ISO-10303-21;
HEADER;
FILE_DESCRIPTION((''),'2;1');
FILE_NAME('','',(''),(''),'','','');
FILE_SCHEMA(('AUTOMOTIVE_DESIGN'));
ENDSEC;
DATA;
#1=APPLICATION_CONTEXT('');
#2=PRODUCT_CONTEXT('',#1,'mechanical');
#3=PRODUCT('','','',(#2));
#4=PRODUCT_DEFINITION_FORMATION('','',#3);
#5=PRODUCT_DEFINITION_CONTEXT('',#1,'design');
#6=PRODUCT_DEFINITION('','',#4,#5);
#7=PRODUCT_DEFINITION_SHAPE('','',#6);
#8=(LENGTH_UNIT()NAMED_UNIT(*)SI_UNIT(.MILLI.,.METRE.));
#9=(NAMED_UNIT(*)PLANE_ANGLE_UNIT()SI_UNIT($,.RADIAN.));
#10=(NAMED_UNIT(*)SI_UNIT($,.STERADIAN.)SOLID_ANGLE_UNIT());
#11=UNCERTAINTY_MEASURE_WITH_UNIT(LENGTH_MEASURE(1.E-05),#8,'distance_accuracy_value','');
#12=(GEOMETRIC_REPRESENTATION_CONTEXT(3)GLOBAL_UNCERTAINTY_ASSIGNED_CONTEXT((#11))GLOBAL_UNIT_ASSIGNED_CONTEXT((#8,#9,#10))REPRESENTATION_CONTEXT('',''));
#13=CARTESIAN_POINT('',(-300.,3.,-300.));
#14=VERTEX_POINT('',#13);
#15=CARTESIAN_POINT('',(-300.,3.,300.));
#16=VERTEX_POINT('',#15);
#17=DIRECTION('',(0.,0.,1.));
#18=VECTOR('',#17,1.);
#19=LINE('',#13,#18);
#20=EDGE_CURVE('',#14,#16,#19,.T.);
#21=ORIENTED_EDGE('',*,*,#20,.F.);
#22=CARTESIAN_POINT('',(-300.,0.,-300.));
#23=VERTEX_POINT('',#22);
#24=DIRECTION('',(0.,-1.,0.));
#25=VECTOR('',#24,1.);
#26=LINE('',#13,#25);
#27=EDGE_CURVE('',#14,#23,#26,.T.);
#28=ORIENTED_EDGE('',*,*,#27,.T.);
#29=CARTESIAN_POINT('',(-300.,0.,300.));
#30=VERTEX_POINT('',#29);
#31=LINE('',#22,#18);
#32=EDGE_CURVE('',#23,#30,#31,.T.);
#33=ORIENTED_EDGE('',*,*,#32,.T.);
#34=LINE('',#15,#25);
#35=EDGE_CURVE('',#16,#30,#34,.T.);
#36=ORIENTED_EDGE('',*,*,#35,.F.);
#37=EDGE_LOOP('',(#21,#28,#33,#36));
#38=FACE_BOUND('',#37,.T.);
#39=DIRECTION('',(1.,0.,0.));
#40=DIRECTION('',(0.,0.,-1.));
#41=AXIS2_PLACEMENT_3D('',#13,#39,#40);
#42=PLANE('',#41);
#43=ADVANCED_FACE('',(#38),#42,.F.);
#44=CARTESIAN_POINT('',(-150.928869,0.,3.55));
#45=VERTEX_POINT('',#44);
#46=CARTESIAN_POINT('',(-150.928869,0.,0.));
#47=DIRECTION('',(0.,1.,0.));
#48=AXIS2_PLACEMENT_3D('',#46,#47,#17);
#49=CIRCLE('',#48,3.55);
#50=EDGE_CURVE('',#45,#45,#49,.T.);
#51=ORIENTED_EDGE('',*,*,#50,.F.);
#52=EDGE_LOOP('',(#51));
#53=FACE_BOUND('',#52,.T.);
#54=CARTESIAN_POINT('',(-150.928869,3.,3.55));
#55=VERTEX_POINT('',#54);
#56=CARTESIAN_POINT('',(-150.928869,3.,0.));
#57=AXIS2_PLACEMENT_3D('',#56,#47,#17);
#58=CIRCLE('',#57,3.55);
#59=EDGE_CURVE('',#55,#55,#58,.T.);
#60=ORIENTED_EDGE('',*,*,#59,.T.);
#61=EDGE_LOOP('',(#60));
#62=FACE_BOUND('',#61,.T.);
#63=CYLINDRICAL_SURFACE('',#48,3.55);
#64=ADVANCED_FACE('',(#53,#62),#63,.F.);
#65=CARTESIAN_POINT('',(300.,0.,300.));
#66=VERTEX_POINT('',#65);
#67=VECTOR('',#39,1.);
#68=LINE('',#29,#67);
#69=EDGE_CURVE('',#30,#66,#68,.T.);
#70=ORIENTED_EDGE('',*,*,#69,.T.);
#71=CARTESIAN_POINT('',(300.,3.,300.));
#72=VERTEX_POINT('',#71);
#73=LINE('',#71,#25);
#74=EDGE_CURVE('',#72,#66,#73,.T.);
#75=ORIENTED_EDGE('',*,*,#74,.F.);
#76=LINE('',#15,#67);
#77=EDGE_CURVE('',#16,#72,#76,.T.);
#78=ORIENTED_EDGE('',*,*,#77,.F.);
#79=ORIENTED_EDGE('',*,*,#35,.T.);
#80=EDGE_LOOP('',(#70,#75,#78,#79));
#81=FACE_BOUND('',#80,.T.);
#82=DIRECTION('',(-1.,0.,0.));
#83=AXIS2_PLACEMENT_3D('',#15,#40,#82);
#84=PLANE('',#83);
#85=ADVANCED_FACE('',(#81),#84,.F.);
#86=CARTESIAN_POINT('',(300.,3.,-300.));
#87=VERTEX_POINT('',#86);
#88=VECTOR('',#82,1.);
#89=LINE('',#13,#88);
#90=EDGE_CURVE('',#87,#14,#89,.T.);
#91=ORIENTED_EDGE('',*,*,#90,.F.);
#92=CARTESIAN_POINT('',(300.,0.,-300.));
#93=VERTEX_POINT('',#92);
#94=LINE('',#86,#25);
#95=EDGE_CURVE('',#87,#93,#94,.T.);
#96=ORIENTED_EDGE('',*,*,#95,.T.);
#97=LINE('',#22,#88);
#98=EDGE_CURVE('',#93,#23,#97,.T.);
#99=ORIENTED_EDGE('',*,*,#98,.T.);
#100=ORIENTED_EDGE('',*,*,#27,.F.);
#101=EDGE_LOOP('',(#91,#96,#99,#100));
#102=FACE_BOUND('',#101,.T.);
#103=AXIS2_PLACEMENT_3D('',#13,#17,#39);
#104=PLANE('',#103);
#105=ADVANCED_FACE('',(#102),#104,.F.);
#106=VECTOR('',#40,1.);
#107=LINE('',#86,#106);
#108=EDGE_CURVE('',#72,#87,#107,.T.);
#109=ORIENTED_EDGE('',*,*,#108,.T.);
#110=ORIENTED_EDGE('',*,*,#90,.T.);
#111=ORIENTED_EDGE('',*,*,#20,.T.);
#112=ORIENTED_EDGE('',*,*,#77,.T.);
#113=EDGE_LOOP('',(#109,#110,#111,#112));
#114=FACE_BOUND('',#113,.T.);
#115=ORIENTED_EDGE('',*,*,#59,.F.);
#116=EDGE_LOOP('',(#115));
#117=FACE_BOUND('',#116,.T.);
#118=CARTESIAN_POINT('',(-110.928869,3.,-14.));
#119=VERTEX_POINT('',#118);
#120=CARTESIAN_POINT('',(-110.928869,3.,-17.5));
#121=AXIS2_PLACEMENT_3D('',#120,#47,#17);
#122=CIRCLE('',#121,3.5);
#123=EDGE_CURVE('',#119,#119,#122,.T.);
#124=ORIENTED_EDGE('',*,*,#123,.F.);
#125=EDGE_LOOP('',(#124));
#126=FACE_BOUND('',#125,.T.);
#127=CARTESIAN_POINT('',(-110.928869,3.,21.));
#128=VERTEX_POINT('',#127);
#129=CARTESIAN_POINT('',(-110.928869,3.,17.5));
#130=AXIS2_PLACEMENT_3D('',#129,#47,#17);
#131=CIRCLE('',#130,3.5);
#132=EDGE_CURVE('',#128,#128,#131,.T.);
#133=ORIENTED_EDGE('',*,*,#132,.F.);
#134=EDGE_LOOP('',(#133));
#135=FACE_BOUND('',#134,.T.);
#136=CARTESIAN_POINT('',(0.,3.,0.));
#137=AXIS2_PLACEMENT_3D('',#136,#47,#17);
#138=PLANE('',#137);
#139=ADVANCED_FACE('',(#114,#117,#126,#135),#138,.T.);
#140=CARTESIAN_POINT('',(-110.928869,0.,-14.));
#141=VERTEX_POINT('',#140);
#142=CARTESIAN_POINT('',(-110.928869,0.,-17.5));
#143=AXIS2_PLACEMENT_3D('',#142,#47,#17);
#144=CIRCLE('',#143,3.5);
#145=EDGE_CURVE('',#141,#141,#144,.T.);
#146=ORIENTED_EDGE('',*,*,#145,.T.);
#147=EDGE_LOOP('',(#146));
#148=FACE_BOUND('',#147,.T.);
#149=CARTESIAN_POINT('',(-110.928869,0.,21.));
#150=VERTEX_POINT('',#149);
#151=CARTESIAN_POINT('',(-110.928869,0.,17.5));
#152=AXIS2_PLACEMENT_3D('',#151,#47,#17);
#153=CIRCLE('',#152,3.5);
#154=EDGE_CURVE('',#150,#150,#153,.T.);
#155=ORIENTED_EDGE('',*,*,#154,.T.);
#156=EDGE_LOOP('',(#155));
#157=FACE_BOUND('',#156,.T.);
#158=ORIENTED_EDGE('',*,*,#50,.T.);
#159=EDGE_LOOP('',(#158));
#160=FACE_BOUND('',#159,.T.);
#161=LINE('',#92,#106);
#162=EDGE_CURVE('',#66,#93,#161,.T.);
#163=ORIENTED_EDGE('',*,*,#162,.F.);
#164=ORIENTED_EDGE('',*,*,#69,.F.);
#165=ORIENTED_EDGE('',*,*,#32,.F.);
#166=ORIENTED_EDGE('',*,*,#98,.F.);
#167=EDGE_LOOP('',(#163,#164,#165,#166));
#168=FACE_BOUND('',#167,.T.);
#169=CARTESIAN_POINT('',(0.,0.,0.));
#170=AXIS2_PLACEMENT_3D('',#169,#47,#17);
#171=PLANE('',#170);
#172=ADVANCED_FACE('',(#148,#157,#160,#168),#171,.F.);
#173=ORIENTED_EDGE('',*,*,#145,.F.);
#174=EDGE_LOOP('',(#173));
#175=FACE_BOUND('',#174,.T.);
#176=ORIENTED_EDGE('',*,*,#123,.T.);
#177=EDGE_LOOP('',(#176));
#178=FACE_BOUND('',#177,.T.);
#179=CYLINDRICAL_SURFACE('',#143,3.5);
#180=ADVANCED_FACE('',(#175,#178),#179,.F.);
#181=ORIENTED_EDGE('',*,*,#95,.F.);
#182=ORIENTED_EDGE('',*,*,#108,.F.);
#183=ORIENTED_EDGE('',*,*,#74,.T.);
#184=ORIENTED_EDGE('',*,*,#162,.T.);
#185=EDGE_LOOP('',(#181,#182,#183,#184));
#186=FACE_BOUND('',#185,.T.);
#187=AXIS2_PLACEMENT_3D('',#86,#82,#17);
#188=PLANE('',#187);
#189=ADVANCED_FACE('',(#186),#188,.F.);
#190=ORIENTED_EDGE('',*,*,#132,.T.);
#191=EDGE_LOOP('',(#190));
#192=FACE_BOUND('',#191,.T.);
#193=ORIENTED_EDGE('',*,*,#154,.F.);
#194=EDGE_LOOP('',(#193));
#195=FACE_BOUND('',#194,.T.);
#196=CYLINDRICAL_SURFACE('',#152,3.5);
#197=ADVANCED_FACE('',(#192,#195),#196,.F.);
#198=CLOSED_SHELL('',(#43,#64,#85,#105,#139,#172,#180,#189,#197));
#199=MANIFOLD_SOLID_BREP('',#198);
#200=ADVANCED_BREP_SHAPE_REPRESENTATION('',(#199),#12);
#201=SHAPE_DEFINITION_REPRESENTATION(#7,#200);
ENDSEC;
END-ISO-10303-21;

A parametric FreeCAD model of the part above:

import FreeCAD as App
import Part
import Sketcher

V = App.Vector
Q = App.Units.Quantity


def add_polygon(sketch, points):
    """Adds a closed chain of lines whose ends are joined by coincident constraints."""
    first, n = sketch.GeometryCount, len(points)
    for a, b in zip(points, points[1:] + points[:1]):
        sketch.addGeometry(Part.LineSegment(App.Vector(*a, 0), App.Vector(*b, 0)), False)
    for i in range(n):
        sketch.addConstraint(Sketcher.Constraint("Coincident", first + i, 2, first + (i + 1) % n, 1))

doc = App.newDocument("Part")
body = doc.addObject("PartDesign::Body", "Body")

# Sketch on XZ plane
sketch1 = body.newObject("Sketcher::SketchObject", "Sketch")
sketch1.AttachmentSupport = (doc.getObject("XZ_Plane"), [""])
sketch1.MapMode = "FlatFace"
add_polygon(sketch1, [(-300, -300), (-300, 300), (300, 300), (300, -300)])  # lines 0-3
sketch1.addConstraint([
    Sketcher.Constraint("Vertical", 0),
    Sketcher.Constraint("Horizontal", 1),
    Sketcher.Constraint("Vertical", 2),
    Sketcher.Constraint("Horizontal", 3),
    Sketcher.Constraint("Symmetric", 0, 2, 2, 2, -1, 1),
    Sketcher.Constraint("Equal", 3, 0),
    Sketcher.Constraint("DistanceX", 1, 1, 1, 2, Q("600 mm")),
])
pad1 = body.newObject("PartDesign::Pad", "Pad")
pad1.Profile = sketch1
pad1.Length = 3
pad1.Reversed = True

# Sketch on XZ plane
sketch2 = body.newObject("Sketcher::SketchObject", "Sketch001")
sketch2.AttachmentSupport = (doc.getObject("XZ_Plane"), [""])
sketch2.MapMode = "FlatFace"
sketch2.AttachmentOffset = App.Placement(V(0, 0, -3), App.Rotation())
sketch2.addGeometry([
    Part.Circle(V(-110.928869, 17.5, 0), V(0, 0, 1), 3.5),
    Part.Circle(V(-110.928869, -17.5, 0), V(0, 0, 1), 3.5),
], False)
sketch2.addConstraint([
    Sketcher.Constraint("Equal", 0, 1),
    Sketcher.Constraint("Symmetric", 0, 3, 1, 3, -1),
    Sketcher.Constraint("Diameter", 0, Q("7 mm")),
    Sketcher.Constraint("DistanceY", 1, 3, 0, 3, Q("35 mm")),
    Sketcher.Constraint("DistanceX", 0, 3, -1, 1, Q("110.928869 mm")),
])
pocket1 = body.newObject("PartDesign::Pocket", "Pocket")
pocket1.Profile = sketch2
pocket1.Type = "ThroughAll"
pocket1.Midplane = True

# Sketch on XZ plane
sketch3 = body.newObject("Sketcher::SketchObject", "Sketch002")
sketch3.AttachmentSupport = (doc.getObject("XZ_Plane"), [""])
sketch3.MapMode = "FlatFace"
sketch3.AttachmentOffset = App.Placement(V(0, 0, -3), App.Rotation())
sketch3.addGeometry(Part.Circle(V(-150.928869, 0, 0), V(0, 0, 1), 3.55), False)
sketch3.addConstraint([
    Sketcher.Constraint("PointOnObject", 0, 3, -1),
    Sketcher.Constraint("Diameter", 0, Q("7.1 mm")),
    Sketcher.Constraint("DistanceX", 0, 3, -1, 1, Q("150.928869 mm")),
])
pocket2 = body.newObject("PartDesign::Pocket", "Pocket001")
pocket2.Profile = sketch3
pocket2.Type = "ThroughAll"
pocket2.Midplane = True

doc.recompute()
